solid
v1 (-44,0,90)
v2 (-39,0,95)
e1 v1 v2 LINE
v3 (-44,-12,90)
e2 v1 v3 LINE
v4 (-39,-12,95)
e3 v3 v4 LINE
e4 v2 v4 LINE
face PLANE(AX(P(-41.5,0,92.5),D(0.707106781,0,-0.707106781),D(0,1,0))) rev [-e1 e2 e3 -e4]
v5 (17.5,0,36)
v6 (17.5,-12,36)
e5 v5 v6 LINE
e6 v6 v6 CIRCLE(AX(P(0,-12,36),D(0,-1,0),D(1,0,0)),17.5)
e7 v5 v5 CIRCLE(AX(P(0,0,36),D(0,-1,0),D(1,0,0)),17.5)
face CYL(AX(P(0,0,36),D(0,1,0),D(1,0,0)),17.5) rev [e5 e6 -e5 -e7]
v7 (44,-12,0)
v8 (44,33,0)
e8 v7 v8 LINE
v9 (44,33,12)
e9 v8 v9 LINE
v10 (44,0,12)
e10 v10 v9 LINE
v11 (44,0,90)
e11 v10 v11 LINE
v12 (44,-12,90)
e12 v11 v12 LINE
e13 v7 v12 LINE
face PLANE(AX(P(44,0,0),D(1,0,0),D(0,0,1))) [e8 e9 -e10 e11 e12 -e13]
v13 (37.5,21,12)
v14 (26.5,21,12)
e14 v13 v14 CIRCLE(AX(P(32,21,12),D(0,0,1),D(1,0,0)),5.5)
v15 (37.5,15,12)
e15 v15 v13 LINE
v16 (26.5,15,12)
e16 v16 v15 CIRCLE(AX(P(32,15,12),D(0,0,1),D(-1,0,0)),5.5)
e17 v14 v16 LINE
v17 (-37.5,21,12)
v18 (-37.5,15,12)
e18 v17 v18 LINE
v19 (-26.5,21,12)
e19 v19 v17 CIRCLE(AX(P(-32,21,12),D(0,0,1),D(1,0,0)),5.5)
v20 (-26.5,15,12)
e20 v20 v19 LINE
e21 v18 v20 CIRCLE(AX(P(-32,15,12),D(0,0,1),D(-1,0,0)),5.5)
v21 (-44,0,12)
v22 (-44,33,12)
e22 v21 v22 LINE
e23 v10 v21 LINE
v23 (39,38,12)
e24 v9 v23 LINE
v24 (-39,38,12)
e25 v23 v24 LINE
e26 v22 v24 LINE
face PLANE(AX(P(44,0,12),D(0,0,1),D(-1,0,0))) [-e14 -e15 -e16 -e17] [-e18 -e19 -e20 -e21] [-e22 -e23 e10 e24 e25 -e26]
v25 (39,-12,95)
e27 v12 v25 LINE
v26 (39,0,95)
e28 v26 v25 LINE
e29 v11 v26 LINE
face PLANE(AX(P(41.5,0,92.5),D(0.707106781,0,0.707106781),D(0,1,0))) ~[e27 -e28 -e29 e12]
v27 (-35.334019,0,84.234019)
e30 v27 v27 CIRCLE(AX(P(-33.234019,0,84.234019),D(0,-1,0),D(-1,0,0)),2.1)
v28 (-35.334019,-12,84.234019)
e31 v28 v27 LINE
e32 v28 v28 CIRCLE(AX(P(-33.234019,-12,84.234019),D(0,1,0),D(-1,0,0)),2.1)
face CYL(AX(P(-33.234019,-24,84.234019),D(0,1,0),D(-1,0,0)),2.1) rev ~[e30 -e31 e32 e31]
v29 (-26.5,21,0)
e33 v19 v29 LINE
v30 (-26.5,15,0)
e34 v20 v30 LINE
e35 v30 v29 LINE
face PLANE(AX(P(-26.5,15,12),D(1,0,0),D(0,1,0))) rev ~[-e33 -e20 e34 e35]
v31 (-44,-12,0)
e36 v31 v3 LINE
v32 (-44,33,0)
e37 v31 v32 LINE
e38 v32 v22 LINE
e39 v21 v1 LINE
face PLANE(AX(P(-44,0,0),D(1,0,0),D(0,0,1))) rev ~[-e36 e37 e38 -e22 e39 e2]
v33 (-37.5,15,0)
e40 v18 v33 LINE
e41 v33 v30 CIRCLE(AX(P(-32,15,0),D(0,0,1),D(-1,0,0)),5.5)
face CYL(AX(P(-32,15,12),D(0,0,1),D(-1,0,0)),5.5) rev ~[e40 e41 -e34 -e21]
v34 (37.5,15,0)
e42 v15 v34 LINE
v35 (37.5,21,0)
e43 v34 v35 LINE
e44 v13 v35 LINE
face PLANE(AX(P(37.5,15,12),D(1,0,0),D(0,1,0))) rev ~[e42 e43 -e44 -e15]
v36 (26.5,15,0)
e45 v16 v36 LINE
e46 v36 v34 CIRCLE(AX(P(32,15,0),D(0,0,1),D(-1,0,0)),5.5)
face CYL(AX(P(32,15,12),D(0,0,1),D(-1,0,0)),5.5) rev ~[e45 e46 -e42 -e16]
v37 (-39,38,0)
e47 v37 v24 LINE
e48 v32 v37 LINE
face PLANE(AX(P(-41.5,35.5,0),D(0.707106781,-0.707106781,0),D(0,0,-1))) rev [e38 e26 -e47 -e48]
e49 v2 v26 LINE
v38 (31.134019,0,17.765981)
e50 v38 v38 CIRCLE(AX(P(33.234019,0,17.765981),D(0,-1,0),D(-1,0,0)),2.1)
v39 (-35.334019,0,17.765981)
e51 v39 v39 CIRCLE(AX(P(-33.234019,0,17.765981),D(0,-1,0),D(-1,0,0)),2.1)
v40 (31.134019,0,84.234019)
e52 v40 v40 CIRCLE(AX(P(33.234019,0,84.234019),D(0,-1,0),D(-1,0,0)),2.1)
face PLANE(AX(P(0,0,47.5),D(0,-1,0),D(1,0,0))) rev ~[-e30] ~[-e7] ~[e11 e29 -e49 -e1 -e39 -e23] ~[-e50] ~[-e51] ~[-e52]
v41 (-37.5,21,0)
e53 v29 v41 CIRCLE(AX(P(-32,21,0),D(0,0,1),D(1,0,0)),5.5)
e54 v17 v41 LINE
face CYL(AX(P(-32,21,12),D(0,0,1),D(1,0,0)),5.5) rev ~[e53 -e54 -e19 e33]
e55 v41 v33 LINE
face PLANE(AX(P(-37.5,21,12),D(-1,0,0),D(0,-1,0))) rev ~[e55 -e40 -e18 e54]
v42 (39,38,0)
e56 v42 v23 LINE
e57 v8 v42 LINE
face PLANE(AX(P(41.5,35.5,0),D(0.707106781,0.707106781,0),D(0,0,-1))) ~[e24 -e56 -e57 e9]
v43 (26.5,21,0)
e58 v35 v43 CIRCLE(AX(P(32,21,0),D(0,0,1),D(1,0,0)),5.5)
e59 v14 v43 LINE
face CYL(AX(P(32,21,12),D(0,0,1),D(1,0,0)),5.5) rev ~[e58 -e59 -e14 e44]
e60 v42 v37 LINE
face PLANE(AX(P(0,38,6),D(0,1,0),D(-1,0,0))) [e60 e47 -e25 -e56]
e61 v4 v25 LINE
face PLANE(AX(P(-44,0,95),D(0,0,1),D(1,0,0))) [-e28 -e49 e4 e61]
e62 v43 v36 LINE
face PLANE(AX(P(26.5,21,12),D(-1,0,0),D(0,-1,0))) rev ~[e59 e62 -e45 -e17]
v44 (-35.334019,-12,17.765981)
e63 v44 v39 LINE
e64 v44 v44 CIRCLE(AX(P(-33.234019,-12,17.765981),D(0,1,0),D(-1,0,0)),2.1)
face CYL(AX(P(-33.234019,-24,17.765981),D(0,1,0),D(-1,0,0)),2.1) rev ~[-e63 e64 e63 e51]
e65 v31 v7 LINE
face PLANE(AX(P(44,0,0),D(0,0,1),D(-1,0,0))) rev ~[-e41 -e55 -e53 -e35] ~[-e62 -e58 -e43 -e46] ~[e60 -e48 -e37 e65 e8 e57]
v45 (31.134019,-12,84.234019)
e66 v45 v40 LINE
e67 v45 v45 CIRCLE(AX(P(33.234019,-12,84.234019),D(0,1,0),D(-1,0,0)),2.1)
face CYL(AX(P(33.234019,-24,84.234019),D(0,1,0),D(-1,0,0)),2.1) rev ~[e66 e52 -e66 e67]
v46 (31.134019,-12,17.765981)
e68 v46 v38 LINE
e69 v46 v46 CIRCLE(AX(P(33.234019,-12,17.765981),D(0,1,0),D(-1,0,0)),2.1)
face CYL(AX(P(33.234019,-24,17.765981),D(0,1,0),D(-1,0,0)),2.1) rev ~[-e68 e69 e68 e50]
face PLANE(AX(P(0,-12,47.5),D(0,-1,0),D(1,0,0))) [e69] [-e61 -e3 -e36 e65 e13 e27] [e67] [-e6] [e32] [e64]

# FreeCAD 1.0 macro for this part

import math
import FreeCAD as App
import Part
import Sketcher
from FreeCAD import Vector


def edges_at(feature, points):
    """Names of the edges that pass closest to the given points."""
    edges = feature.Shape.Edges
    near = lambda p: min(range(len(edges)), key=lambda i: edges[i].distToShape(Part.Vertex(*p))[0])
    return sorted({f"Edge{near(p) + 1}" for p in points})

doc = App.newDocument("Part")
body = doc.addObject("PartDesign::Body", "Body")

sketch1 = body.newObject("Sketcher::SketchObject", "Sketch")
sketch1.AttachmentSupport = (doc.getObject("XZ_Plane"), [""])
sketch1.MapMode = "FlatFace"
sketch1.addGeometry([
    Part.LineSegment(Vector(-44, 95, 0), Vector(-44, 0, 0)),
    Part.LineSegment(Vector(-44, 0, 0), Vector(44, 0, 0)),
    Part.LineSegment(Vector(44, 0, 0), Vector(44, 95, 0)),
    Part.LineSegment(Vector(44, 95, 0), Vector(-44, 95, 0)),
    Part.Circle(Vector(0, 36, 0), Vector(0, 0, 1), 18),
], False)
sketch1.addConstraint([
    Sketcher.Constraint("Coincident", 0, 2, 1, 1),
    Sketcher.Constraint("Coincident", 1, 2, 2, 1),
    Sketcher.Constraint("Coincident", 2, 2, 3, 1),
    Sketcher.Constraint("Coincident", 3, 2, 0, 1),
    Sketcher.Constraint("Vertical", 0),
    Sketcher.Constraint("Horizontal", 1),
    Sketcher.Constraint("Vertical", 2),
    Sketcher.Constraint("Horizontal", 3),
    Sketcher.Constraint("Symmetric", 0, 2, 1, 2, -1, 1),
    Sketcher.Constraint("PointOnObject", 4, 3, -2),
    Sketcher.Constraint("Diameter", 4, 35.0),
    Sketcher.Constraint("DistanceX", 1, 1, 1, 2, 88.0),
    Sketcher.Constraint("DistanceY", 0, 2, 0, 1, 95.0),
    Sketcher.Constraint("DistanceY", -1, 1, 4, 3, 36.0),
])
pad1 = body.newObject("PartDesign::Pad", "Pad")
pad1.Profile = sketch1
pad1.Length = 12

sketch2 = body.newObject("Sketcher::SketchObject", "Sketch001")
sketch2.AttachmentSupport = (doc.getObject("XZ_Plane"), [""])
sketch2.MapMode = "FlatFace"
sketch2.addGeometry([
    Part.LineSegment(Vector(44, 12, 0), Vector(44, 0, 0)),
    Part.LineSegment(Vector(44, 0, 0), Vector(-44, 0, 0)),
    Part.LineSegment(Vector(-44, 0, 0), Vector(-44, 12, 0)),
    Part.LineSegment(Vector(-44, 12, 0), Vector(44, 12, 0)),
], False)
sketch2.addConstraint([
    Sketcher.Constraint("Coincident", 0, 2, 1, 1),
    Sketcher.Constraint("Coincident", 1, 2, 2, 1),
    Sketcher.Constraint("Coincident", 2, 2, 3, 1),
    Sketcher.Constraint("Coincident", 3, 2, 0, 1),
    Sketcher.Constraint("Vertical", 0),
    Sketcher.Constraint("Horizontal", 1),
    Sketcher.Constraint("Vertical", 2),
    Sketcher.Constraint("Horizontal", 3),
    Sketcher.Constraint("Symmetric", 0, 2, 1, 2, -1, 1),
    Sketcher.Constraint("DistanceX", 1, 2, 1, 1, 88.0),
    Sketcher.Constraint("DistanceY", 0, 2, 0, 1, 12.0),
])
pad2 = body.newObject("PartDesign::Pad", "Pad001")
pad2.Profile = sketch2
pad2.Length = 38
pad2.Reversed = True

sketch3 = body.newObject("Sketcher::SketchObject", "Sketch002")
sketch3.AttachmentSupport = (doc.getObject("XY_Plane"), [""])
sketch3.MapMode = "FlatFace"
sketch3.AttachmentOffset = App.Placement(Vector(0, 0, 12), App.Rotation())
sketch3.addGeometry([
    Part.ArcOfCircle(Part.Circle(Vector(32, 15, 0), Vector(0, 0, 1), 6), math.radians(180), math.radians(360)),
    Part.LineSegment(Vector(38, 15, 0), Vector(38, 21, 0)),
    Part.ArcOfCircle(Part.Circle(Vector(32, 21, 0), Vector(0, 0, 1), 6), math.radians(0), math.radians(180)),
    Part.LineSegment(Vector(26, 21, 0), Vector(26, 15, 0)),
    Part.ArcOfCircle(Part.Circle(Vector(-32, 15, 0), Vector(0, 0, 1), 6), math.radians(180), math.radians(360)),
    Part.LineSegment(Vector(-26, 15, 0), Vector(-26, 21, 0)),
    Part.ArcOfCircle(Part.Circle(Vector(-32, 21, 0), Vector(0, 0, 1), 6), math.radians(0), math.radians(180)),
    Part.LineSegment(Vector(-38, 21, 0), Vector(-38, 15, 0)),
], False)
sketch3.addConstraint([
    Sketcher.Constraint("Tangent", 0, 2, 1, 1),
    Sketcher.Constraint("Tangent", 1, 2, 2, 1),
    Sketcher.Constraint("Tangent", 2, 2, 3, 1),
    Sketcher.Constraint("Tangent", 3, 2, 0, 1),
    Sketcher.Constraint("Tangent", 4, 2, 5, 1),
    Sketcher.Constraint("Tangent", 5, 2, 6, 1),
    Sketcher.Constraint("Tangent", 6, 2, 7, 1),
    Sketcher.Constraint("Tangent", 7, 2, 4, 1),
    Sketcher.Constraint("Vertical", 1),
    Sketcher.Constraint("Vertical", 3),
    Sketcher.Constraint("Vertical", 5),
    Sketcher.Constraint("Vertical", 7),
    Sketcher.Constraint("Equal", 2, 4),
    Sketcher.Constraint("Symmetric", 0, 3, 4, 3, -2),
    Sketcher.Constraint("Horizontal", 2, 3, 6, 3),
    Sketcher.Constraint("Radius", 0, 5.5),
    Sketcher.Constraint("DistanceY", 1, 1, 1, 2, 6.0),
    Sketcher.Constraint("DistanceX", -1, 1, 0, 3, 32.0),
    Sketcher.Constraint("DistanceY", -1, 1, 0, 3, 15.0),
])
pocket1 = body.newObject("PartDesign::Pocket", "Pocket")
pocket1.Profile = sketch3
pocket1.Type = "ThroughAll"

sketch4 = body.newObject("Sketcher::SketchObject", "Sketch003")
sketch4.AttachmentSupport = (doc.getObject("XZ_Plane"), [""])
sketch4.MapMode = "FlatFace"
sketch4.AttachmentOffset = App.Placement(Vector(0, 0, 12), App.Rotation())
sketch4.addGeometry([
    Part.Circle(Vector(-33.2, 84.2, 0), Vector(0, 0, 1), 2.1),
    Part.Circle(Vector(33.2, 84.2, 0), Vector(0, 0, 1), 2.1),
    Part.Circle(Vector(33.2, 17.8, 0), Vector(0, 0, 1), 2.1),
    Part.Circle(Vector(-33.2, 17.8, 0), Vector(0, 0, 1), 2.1),
], False)
sketch4.addConstraint([
    Sketcher.Constraint("Equal", 0, 1),
    Sketcher.Constraint("Equal", 1, 2),
    Sketcher.Constraint("Equal", 2, 3),
    Sketcher.Constraint("Symmetric", 0, 3, 1, 3, -2),
    Sketcher.Constraint("Symmetric", 2, 3, 3, 3, -2),
    Sketcher.Constraint("Vertical", 1, 3, 2, 3),
    Sketcher.Constraint("Diameter", 0, 4.2),
    Sketcher.Constraint("DistanceX", 0, 3, -1, 1, 33.234019),
    Sketcher.Constraint("DistanceY", -1, 1, 0, 3, 84.234019),
    Sketcher.Constraint("DistanceY", -1, 1, 2, 3, 17.765981),
])
doc.recompute()
hole = body.newObject("PartDesign::Hole", "Hole")
hole.Profile = sketch4
hole.ThreadType = "None"
hole.Diameter = 4.2
hole.DepthType = "Dimension"
hole.Depth = 12
hole.DrillPoint = "Angled"
hole.DrillPointAngle = 118
doc.recompute()

chamfer = body.newObject("PartDesign::Chamfer", "Chamfer")
chamfer.Base = (hole, edges_at(hole, [
    (-44, -6, 95),
    (44, -6, 95),
    (-44, 38, 6),
    (44, 38, 6),
]))
chamfer.Size = 5

doc.recompute()
